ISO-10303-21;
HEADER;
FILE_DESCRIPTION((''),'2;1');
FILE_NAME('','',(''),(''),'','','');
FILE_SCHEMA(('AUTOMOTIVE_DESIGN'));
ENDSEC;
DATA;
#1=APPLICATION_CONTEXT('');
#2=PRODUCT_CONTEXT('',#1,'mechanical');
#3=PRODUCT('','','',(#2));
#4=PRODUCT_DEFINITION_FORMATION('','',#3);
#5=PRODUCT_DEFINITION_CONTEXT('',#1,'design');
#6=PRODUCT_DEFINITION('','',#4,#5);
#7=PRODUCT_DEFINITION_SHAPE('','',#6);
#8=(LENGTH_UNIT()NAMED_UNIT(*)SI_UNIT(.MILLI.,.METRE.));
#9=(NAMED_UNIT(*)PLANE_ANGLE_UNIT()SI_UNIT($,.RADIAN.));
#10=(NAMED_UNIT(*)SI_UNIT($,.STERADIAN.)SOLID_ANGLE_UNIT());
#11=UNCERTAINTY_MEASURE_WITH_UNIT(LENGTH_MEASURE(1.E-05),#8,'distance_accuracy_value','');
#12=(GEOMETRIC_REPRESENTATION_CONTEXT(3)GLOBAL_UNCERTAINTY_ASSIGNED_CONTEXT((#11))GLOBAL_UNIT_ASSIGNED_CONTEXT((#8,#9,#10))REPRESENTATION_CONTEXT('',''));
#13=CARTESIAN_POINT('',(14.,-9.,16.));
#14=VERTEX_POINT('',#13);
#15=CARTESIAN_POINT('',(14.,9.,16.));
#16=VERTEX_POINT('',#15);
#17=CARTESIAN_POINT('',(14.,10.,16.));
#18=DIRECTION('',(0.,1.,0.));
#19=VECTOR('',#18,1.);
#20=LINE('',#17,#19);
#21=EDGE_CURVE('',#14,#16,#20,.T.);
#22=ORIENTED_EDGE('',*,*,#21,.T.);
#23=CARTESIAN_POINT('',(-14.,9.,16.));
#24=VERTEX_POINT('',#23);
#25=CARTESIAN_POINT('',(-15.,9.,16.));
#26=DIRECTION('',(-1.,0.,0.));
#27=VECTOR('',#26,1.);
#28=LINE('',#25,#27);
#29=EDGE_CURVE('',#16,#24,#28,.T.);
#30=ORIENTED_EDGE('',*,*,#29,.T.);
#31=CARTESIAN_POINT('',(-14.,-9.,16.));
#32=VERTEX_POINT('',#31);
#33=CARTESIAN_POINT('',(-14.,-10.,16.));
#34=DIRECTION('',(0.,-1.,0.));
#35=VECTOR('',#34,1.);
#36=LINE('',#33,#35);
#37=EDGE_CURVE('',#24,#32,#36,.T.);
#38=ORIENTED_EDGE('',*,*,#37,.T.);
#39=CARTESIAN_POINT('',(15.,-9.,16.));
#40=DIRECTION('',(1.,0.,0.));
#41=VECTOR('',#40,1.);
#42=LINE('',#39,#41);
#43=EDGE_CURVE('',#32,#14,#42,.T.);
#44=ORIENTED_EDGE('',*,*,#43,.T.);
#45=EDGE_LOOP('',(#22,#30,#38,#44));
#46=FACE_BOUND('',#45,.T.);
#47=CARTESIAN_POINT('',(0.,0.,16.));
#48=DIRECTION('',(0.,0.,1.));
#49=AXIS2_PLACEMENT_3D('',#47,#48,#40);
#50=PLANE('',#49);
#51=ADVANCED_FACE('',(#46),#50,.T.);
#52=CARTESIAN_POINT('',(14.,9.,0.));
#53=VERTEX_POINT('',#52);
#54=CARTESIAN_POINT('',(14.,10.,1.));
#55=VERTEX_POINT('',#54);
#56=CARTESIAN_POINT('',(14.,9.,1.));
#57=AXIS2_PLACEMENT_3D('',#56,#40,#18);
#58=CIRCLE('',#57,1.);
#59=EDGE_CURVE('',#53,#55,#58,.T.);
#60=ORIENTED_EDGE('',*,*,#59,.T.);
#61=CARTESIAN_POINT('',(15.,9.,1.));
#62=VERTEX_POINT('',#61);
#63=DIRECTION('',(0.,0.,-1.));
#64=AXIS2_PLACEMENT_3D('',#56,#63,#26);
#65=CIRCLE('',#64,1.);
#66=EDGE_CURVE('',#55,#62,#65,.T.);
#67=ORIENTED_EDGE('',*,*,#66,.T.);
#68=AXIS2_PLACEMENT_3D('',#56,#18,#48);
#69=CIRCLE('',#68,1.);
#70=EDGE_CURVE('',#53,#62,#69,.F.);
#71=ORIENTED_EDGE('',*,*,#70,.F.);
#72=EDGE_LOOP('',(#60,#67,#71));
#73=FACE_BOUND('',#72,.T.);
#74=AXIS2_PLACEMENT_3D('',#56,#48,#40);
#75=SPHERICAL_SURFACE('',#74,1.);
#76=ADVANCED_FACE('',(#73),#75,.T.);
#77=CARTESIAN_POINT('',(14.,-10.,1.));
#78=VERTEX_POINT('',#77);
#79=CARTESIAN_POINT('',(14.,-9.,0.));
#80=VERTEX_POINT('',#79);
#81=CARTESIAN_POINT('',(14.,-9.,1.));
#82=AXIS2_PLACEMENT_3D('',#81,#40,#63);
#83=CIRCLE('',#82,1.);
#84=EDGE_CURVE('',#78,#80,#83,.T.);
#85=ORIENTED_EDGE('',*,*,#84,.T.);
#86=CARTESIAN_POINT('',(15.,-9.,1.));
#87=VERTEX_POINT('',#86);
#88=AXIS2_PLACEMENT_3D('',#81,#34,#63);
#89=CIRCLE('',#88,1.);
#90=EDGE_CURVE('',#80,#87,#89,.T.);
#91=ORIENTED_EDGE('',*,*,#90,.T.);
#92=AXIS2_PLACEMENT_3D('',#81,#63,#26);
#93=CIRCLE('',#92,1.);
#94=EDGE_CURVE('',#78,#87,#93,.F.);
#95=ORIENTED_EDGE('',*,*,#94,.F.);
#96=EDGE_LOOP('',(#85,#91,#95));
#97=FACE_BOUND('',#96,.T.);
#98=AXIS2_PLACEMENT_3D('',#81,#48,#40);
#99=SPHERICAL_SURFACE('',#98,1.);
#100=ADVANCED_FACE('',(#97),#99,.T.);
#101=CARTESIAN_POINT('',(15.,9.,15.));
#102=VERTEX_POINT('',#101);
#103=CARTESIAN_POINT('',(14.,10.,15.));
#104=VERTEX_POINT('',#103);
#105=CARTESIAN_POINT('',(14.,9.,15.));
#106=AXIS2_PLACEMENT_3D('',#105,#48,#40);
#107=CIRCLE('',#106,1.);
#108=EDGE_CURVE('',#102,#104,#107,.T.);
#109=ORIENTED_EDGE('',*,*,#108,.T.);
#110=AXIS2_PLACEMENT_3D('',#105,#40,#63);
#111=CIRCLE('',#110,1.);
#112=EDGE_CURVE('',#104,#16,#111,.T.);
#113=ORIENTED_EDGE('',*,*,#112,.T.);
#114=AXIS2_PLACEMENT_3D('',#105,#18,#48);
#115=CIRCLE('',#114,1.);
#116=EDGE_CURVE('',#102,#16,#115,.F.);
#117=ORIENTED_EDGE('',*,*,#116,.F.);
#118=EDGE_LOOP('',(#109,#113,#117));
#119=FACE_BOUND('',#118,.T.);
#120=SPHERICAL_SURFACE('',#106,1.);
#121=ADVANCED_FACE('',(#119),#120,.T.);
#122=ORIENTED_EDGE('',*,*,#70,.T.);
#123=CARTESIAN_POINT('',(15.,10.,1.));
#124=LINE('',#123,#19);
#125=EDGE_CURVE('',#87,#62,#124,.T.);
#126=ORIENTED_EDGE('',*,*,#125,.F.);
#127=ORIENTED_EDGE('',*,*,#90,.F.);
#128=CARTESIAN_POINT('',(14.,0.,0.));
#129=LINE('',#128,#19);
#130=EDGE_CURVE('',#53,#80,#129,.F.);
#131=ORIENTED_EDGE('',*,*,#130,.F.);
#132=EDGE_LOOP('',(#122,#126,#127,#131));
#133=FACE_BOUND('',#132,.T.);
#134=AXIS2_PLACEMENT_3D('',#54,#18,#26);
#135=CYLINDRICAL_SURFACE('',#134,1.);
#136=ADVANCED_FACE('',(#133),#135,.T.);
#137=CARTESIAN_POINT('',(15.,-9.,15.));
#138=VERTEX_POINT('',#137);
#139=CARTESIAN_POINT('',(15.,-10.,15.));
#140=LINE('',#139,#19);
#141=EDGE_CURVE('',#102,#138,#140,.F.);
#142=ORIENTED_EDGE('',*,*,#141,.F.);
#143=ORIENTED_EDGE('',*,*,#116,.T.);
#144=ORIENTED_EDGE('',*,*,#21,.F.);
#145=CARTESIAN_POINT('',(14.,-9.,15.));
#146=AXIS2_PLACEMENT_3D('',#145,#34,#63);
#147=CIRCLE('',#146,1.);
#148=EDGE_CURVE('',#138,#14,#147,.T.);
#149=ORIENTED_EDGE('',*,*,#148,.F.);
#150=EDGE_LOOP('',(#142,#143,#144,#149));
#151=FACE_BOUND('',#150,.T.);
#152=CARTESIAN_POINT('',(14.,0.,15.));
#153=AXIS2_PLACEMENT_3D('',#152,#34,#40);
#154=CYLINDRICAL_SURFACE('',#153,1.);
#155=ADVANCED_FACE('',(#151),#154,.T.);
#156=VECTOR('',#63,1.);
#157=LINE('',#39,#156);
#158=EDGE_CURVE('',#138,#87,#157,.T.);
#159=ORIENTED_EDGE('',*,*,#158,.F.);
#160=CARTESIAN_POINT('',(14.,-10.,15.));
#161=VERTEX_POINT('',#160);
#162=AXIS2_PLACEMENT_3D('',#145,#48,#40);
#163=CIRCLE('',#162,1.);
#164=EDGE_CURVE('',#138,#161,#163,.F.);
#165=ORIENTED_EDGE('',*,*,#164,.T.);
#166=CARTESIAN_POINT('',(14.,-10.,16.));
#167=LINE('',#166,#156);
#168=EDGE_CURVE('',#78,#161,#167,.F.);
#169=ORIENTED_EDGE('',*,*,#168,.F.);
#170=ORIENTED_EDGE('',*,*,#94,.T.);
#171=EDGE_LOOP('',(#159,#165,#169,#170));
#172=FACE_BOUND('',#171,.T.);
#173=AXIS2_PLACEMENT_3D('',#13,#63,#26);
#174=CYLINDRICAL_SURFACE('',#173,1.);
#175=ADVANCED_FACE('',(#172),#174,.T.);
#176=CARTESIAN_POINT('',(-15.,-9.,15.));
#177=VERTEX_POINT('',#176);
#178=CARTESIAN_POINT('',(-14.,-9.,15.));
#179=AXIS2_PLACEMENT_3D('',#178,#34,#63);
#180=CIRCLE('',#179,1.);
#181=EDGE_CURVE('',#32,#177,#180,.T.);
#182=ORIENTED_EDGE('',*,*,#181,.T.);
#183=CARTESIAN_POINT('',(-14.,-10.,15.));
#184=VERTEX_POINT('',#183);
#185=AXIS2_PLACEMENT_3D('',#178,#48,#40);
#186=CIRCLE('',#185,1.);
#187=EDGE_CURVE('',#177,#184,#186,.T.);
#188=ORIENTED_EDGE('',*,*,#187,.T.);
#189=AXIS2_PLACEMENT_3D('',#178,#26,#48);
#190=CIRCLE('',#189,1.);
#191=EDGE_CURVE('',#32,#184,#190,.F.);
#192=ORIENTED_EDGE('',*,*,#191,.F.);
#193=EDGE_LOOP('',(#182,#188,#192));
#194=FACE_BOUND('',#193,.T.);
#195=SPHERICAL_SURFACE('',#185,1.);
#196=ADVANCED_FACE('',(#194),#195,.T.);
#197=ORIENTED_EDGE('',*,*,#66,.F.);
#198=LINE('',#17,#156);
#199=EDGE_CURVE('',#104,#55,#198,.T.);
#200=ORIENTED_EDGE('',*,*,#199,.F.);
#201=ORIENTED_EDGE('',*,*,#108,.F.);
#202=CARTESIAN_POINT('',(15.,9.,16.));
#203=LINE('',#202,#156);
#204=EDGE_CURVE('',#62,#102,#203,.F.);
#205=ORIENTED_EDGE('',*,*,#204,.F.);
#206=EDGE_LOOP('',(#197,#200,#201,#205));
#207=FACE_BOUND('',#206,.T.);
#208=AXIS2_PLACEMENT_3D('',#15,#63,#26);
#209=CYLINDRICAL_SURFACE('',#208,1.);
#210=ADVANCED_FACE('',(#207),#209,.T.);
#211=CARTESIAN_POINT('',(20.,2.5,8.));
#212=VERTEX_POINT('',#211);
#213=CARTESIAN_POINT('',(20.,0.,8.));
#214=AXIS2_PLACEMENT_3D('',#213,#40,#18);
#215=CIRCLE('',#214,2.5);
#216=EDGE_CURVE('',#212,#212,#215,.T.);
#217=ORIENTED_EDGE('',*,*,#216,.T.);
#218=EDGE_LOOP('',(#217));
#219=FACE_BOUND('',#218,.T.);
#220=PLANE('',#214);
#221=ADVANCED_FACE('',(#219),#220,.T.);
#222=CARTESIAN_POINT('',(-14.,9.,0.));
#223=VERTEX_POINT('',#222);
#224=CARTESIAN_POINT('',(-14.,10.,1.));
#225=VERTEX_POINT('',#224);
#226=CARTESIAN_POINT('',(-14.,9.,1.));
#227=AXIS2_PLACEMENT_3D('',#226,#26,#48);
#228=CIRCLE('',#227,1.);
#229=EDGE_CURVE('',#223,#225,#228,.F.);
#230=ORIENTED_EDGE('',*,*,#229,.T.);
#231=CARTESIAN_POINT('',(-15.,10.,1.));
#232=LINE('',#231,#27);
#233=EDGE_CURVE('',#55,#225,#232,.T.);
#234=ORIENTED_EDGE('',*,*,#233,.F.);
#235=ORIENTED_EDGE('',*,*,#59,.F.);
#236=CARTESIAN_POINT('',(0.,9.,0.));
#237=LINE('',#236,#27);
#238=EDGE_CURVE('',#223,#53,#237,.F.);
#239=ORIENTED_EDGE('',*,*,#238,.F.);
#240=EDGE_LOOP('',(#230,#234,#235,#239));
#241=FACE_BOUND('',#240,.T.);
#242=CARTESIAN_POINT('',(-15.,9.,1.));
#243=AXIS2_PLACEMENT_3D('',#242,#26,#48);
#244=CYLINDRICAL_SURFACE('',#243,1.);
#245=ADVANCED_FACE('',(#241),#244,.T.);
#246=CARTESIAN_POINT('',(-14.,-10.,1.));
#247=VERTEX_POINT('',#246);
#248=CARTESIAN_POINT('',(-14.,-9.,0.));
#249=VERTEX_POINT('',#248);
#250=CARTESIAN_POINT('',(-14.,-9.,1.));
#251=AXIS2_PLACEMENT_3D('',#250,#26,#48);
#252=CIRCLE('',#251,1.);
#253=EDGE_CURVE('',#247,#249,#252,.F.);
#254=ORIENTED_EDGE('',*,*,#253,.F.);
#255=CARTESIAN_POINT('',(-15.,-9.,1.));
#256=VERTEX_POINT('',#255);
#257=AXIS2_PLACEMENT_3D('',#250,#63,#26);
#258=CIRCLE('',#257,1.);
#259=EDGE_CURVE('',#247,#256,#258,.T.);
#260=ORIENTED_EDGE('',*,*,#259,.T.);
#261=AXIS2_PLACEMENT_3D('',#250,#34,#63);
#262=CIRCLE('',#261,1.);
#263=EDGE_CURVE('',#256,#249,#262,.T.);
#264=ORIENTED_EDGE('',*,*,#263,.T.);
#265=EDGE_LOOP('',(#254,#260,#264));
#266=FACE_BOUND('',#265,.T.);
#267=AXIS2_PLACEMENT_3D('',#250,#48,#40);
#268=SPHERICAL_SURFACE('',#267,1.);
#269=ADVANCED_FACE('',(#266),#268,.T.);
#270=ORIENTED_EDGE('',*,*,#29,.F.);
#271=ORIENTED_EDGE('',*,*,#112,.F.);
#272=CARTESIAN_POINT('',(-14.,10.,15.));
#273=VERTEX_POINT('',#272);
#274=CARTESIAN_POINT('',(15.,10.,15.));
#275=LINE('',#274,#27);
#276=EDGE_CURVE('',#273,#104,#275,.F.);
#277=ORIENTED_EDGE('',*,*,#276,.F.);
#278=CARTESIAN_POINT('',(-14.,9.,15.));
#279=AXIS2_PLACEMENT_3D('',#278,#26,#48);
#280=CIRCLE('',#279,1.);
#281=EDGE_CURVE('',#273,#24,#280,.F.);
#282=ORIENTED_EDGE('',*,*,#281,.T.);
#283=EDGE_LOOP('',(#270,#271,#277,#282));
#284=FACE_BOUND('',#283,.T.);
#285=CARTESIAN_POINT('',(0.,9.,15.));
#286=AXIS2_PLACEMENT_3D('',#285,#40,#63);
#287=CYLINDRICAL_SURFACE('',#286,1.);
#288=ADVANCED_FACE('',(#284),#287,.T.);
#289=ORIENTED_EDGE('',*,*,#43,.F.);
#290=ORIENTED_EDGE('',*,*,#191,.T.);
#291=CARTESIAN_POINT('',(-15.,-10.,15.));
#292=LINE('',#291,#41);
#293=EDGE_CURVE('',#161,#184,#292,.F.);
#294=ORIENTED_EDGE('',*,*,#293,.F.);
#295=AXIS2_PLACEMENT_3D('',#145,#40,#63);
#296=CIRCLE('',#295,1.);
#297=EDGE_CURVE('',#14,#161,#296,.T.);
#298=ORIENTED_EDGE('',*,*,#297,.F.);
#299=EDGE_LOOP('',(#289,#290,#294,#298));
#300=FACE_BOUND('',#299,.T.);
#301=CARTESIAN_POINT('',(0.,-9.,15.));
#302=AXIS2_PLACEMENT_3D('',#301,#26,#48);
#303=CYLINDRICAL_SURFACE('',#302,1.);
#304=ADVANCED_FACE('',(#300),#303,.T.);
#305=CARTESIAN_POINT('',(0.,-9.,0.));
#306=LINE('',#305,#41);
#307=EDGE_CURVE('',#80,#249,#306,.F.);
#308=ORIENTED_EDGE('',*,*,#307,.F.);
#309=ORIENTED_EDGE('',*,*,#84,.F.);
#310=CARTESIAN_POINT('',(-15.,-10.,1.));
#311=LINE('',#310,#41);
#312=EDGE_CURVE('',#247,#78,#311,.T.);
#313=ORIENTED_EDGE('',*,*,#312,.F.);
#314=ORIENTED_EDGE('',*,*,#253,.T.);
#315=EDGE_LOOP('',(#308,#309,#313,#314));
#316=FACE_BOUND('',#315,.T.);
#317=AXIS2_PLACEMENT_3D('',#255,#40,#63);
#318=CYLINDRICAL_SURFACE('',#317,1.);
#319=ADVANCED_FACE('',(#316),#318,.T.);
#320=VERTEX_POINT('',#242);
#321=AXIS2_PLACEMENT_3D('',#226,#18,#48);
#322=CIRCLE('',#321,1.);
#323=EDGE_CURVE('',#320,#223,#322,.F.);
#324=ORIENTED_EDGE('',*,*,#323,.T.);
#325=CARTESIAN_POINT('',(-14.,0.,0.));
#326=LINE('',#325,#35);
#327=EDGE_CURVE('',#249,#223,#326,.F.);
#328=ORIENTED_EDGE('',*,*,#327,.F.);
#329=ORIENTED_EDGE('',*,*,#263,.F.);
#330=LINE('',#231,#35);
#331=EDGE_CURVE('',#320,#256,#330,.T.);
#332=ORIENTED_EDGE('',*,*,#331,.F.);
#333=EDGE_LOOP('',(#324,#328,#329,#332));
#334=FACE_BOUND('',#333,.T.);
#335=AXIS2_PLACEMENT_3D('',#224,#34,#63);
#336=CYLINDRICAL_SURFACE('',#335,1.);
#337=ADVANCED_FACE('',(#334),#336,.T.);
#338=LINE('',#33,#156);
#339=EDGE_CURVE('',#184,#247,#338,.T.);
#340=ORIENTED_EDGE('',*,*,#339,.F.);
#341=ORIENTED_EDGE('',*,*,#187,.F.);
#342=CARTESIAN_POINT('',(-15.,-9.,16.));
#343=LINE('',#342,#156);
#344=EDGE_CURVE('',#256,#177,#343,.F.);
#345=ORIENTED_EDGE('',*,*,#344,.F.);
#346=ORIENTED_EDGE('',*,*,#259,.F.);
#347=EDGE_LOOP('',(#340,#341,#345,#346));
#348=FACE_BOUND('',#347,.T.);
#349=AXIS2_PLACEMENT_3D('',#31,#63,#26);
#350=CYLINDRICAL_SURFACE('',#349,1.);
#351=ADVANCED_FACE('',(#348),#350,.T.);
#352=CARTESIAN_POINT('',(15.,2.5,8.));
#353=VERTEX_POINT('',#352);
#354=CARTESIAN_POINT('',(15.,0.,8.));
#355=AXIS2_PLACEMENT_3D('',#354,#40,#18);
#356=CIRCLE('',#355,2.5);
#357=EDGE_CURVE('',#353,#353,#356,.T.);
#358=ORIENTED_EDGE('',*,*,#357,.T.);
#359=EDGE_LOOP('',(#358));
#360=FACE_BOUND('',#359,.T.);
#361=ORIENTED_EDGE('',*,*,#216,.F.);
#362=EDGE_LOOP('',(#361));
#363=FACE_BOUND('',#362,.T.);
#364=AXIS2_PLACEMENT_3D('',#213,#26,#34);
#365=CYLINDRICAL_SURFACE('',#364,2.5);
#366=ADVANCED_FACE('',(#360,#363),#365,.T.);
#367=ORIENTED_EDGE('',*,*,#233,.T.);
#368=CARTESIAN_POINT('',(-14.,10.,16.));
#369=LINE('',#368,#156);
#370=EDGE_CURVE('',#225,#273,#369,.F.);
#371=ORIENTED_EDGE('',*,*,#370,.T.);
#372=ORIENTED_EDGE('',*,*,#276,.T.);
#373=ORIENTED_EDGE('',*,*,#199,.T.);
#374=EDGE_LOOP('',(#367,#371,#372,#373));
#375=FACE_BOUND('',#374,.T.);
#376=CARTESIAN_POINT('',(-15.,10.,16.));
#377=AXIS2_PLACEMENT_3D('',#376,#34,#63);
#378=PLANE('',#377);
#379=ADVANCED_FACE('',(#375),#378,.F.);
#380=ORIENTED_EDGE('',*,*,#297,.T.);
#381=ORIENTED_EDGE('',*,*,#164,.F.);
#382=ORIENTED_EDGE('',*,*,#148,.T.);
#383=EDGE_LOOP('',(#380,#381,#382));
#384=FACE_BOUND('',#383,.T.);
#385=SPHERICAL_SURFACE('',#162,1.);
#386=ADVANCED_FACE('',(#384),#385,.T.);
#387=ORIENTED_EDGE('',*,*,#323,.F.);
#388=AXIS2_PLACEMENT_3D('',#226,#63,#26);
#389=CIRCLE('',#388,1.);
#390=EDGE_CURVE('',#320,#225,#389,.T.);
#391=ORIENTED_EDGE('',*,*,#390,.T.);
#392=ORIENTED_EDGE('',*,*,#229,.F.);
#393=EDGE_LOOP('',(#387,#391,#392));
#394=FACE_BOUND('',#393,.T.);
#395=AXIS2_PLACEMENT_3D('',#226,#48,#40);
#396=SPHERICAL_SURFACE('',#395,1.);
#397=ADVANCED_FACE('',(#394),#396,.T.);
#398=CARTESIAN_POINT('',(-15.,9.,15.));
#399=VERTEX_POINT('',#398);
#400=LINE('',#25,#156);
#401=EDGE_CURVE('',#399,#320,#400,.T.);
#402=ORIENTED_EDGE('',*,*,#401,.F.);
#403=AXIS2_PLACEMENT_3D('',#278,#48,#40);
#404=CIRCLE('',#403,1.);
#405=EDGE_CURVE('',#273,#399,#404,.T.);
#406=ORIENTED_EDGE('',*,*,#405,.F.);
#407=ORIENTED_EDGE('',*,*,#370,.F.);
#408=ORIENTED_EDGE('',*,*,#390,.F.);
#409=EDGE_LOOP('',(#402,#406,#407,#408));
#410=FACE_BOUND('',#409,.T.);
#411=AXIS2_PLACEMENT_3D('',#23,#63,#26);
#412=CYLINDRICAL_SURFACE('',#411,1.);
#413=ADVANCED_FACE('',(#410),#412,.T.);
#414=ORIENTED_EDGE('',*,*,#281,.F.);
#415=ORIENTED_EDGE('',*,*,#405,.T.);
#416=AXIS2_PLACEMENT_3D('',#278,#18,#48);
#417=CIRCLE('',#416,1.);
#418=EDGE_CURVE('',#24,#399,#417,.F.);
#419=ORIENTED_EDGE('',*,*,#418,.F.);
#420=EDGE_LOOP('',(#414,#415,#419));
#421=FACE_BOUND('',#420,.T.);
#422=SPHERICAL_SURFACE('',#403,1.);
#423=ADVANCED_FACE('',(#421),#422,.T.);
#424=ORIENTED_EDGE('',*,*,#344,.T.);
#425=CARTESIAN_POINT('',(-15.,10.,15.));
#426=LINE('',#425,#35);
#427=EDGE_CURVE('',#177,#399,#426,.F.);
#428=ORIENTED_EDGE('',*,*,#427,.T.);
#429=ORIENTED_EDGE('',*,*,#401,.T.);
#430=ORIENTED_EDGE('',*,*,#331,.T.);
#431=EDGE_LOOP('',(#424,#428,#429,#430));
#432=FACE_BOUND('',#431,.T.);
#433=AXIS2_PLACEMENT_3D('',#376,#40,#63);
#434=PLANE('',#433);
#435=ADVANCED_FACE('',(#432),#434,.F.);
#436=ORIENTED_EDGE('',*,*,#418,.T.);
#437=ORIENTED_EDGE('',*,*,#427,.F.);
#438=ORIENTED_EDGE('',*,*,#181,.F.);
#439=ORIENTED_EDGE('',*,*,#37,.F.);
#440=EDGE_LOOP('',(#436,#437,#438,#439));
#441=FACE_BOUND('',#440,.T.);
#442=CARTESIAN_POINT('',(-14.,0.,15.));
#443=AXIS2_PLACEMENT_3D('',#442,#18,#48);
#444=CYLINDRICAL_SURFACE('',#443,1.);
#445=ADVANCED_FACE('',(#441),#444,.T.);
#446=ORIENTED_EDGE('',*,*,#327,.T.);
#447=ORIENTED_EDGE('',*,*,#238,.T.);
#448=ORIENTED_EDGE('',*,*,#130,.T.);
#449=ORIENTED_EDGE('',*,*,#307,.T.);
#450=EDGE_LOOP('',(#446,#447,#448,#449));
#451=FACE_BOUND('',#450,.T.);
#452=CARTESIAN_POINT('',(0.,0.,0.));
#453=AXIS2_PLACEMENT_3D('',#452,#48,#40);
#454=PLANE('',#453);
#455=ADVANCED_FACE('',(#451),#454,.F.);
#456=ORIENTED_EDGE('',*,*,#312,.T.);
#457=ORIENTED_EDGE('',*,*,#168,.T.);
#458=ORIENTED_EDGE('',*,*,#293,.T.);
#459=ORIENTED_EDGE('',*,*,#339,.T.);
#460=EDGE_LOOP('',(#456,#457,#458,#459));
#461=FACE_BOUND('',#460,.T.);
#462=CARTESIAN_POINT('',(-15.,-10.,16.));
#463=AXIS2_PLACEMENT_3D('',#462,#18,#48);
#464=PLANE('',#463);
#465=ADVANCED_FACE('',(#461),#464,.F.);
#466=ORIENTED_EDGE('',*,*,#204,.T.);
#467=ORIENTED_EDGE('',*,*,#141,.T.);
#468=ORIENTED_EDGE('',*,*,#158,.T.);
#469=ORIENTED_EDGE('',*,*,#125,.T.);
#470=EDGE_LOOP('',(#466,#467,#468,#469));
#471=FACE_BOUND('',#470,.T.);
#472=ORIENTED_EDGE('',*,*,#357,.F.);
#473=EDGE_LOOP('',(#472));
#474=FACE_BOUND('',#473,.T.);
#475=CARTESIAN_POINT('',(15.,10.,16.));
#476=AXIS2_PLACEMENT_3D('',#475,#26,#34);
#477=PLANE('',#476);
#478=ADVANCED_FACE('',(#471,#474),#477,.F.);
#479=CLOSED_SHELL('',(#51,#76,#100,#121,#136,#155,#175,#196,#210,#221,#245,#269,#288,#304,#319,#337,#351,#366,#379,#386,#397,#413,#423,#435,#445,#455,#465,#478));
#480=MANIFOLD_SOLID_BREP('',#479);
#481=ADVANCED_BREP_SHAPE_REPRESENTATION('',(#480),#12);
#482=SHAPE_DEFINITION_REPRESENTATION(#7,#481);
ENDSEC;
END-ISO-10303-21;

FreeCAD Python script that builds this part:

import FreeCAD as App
import Part
import Sketcher

V = App.Vector


def edges_at(feature, points):
    """Names of the edges that pass closest to the given points."""
    edges = feature.Shape.Edges
    near = lambda p: min(range(len(edges)), key=lambda i: edges[i].distToShape(Part.Vertex(*p))[0])
    return sorted({f"Edge{near(p) + 1}" for p in points})

doc = App.newDocument("Part")
body = doc.addObject("PartDesign::Body", "Body")

# Sketch on XY plane
sketch1 = body.newObject("Sketcher::SketchObject", "Sketch")
sketch1.AttachmentSupport = (doc.getObject("XY_Plane"), [""])
sketch1.MapMode = "FlatFace"
sketch1.addGeometry([
    Part.LineSegment(V(-15, 10, 0), V(-15, -10, 0)),
    Part.LineSegment(V(-15, -10, 0), V(15, -10, 0)),
    Part.LineSegment(V(15, -10, 0), V(15, 10, 0)),
    Part.LineSegment(V(15, 10, 0), V(-15, 10, 0)),
], False)
sketch1.addConstraint([
    Sketcher.Constraint("Coincident", 0, 2, 1, 1),
    Sketcher.Constraint("Coincident", 1, 2, 2, 1),
    Sketcher.Constraint("Coincident", 2, 2, 3, 1),
    Sketcher.Constraint("Coincident", 3, 2, 0, 1),
    Sketcher.Constraint("Vertical", 0),
    Sketcher.Constraint("Horizontal", 1),
    Sketcher.Constraint("Vertical", 2),
    Sketcher.Constraint("Horizontal", 3),
    Sketcher.Constraint("Symmetric", 0, 2, 2, 2, -1, 1),
    Sketcher.Constraint("DistanceX", 1, 1, 1, 2, 30.0),
    Sketcher.Constraint("DistanceY", 0, 2, 0, 1, 20.0),
])
pad1 = body.newObject("PartDesign::Pad", "Pad")
pad1.Profile = sketch1
pad1.Length = 16

# Sketch on YZ plane
sketch2 = body.newObject("Sketcher::SketchObject", "Sketch001")
sketch2.AttachmentSupport = (doc.getObject("YZ_Plane"), [""])
sketch2.MapMode = "FlatFace"
sketch2.AttachmentOffset = App.Placement(V(0, 0, 15), App.Rotation())
sketch2.addGeometry(Part.Circle(V(0, 8, 0), V(0, 0, 1), 2.5), False)
sketch2.addConstraint([
    Sketcher.Constraint("PointOnObject", 0, 3, -2),
    Sketcher.Constraint("Diameter", 0, 5.0),
    Sketcher.Constraint("DistanceY", -1, 1, 0, 3, 8.0),
])
pad2 = body.newObject("PartDesign::Pad", "Pad001")
pad2.Profile = sketch2
pad2.Length = 5
doc.recompute()

fillet = body.newObject("PartDesign::Fillet", "Fillet")
fillet.Base = (pad2, edges_at(pad2, [
    (-15, 0, 16),
    (0, -10, 16),
    (15, 0, 16),
    (0, -10, 0),
    (-15, 0, 0),
    (0, 10, 0),
    (15, 0, 0),
    (0, 10, 16),
    (15, -10, 8),
    (-15, -10, 8),
    (-15, 10, 8),
    (15, 10, 8),
]))
fillet.Radius = 1

doc.recompute()
